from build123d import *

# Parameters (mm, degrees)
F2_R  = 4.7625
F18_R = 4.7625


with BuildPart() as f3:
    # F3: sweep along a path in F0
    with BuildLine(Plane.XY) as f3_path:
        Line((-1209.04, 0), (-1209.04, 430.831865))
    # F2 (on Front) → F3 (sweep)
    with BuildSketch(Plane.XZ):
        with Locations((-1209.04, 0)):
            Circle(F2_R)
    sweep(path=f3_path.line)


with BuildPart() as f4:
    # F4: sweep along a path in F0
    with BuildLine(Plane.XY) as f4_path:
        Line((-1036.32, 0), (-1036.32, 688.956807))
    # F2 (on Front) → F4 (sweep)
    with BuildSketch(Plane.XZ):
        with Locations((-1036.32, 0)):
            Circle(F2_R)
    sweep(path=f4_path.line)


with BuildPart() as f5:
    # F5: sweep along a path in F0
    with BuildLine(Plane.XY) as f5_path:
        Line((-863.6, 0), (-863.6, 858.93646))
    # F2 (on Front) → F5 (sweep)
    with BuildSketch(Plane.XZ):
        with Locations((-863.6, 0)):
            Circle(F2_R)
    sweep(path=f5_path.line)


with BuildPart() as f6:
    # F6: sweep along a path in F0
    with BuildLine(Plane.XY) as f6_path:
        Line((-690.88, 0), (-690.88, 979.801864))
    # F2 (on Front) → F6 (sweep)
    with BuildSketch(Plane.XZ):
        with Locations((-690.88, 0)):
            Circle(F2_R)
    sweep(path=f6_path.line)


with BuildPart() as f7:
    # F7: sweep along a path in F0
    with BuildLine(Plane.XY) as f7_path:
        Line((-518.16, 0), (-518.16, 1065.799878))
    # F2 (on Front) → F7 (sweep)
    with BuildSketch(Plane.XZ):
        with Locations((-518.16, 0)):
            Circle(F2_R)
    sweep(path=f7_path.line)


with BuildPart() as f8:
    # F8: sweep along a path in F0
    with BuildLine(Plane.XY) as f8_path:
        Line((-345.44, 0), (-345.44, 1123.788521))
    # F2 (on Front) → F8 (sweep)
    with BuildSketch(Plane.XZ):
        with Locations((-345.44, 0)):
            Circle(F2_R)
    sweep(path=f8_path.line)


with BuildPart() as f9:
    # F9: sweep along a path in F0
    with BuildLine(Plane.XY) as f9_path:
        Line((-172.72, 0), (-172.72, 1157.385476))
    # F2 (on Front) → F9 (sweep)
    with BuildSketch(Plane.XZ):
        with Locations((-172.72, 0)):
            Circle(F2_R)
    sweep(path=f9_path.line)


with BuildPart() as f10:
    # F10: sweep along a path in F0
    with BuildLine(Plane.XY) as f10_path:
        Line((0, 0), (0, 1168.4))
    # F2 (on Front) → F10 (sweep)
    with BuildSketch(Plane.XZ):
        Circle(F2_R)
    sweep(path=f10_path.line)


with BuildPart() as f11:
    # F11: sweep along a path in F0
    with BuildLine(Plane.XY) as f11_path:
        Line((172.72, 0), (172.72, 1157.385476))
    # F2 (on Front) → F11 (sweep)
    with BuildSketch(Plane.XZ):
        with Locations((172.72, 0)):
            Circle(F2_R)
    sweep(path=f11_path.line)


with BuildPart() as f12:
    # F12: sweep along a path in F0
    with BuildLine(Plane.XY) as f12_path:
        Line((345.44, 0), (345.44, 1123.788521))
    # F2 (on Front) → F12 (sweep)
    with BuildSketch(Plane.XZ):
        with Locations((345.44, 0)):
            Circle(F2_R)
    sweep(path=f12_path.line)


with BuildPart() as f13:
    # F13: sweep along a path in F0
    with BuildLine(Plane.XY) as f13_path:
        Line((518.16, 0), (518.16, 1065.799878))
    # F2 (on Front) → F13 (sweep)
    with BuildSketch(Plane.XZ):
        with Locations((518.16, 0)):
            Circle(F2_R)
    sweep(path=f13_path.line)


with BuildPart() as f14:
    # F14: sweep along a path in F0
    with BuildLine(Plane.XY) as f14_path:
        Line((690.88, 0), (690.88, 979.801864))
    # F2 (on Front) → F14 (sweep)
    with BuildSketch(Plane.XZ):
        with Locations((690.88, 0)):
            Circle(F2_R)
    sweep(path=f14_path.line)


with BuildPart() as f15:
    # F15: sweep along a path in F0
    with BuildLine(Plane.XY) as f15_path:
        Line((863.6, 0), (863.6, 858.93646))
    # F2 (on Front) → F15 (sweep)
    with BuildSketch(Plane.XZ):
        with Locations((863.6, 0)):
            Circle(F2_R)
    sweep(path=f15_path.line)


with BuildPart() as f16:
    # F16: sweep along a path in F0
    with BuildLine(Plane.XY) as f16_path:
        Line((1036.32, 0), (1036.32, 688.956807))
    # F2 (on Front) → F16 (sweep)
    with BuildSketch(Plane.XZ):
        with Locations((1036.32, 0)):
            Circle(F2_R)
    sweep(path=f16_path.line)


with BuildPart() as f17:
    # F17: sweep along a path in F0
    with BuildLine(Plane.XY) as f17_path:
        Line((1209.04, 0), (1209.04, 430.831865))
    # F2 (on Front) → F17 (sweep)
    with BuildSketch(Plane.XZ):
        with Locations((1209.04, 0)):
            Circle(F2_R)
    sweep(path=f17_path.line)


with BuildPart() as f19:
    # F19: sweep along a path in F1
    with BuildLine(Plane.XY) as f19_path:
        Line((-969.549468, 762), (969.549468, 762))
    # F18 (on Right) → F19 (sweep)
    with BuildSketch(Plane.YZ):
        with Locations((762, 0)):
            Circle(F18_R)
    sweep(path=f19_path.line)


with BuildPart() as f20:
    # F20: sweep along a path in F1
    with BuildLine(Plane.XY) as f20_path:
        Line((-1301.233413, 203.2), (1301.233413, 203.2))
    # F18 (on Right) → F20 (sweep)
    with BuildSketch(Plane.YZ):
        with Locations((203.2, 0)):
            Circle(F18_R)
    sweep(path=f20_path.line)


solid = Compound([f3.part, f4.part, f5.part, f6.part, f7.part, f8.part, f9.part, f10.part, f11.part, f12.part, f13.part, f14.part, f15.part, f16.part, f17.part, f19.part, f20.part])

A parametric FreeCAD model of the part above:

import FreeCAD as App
import Part
import Sketcher

V = App.Vector
Q = App.Units.Quantity

doc = App.newDocument("Part")
body = doc.addObject("PartDesign::Body", "Body")

sketch1 = doc.addObject("Sketcher::SketchObject", "Sketch")
body.addObject(sketch1)
sketch1.AttachmentSupport = (doc.XZ_Plane, [""])
sketch1.MapMode = "FlatFace"
sketch1.addGeometry(Part.Circle(V(-1209, 0, 0), V(0, 0, 1), 4.8), False)
sketch1.addConstraint(Sketcher.Constraint("PointOnObject", 0, 3, -1))
sketch1.addConstraint(Sketcher.Constraint("Diameter", 0, Q("0.375 in")))
sketch1.addConstraint(Sketcher.Constraint("DistanceX", 0, 3, -1, 1, Q("47.6 in")))

sketch2 = doc.addObject("Sketcher::SketchObject", "Sketch001")
body.addObject(sketch2)
sketch2.AttachmentSupport = (doc.XY_Plane, [""])
sketch2.MapMode = "FlatFace"
sketch2.addGeometry(Part.LineSegment(V(-1209, 0, 0), V(-1209, 431, 0)), False)
sketch2.addConstraint(Sketcher.Constraint("Vertical", 0))
sketch2.addConstraint(Sketcher.Constraint("PointOnObject", 0, 1, -1))
sketch2.addConstraint(Sketcher.Constraint("DistanceX", 0, 1, -1, 1, Q("47.6 in")))
sketch2.addConstraint(Sketcher.Constraint("DistanceY", 0, 1, 0, 2, 430.831865))
doc.recompute()

additivepipe = doc.addObject("PartDesign::AdditivePipe", "AdditivePipe")
body.addObject(additivepipe)
additivepipe.Profile = sketch1
additivepipe.Spine = (sketch2, ["Edge1"])
body2 = doc.addObject("PartDesign::Body", "Body001")

sketch3 = doc.addObject("Sketcher::SketchObject", "Sketch002")
body2.addObject(sketch3)
sketch3.AttachmentSupport = (doc.getObject("XZ_Plane001"), [""])
sketch3.MapMode = "FlatFace"
sketch3.addGeometry(Part.Circle(V(-1036.3, 0, 0), V(0, 0, 1), 4.8), False)
sketch3.addConstraint(Sketcher.Constraint("PointOnObject", 0, 3, -1))
sketch3.addConstraint(Sketcher.Constraint("Diameter", 0, Q("0.375 in")))
sketch3.addConstraint(Sketcher.Constraint("DistanceX", 0, 3, -1, 1, Q("40.8 in")))

sketch4 = doc.addObject("Sketcher::SketchObject", "Sketch003")
body2.addObject(sketch4)
sketch4.AttachmentSupport = (doc.getObject("XY_Plane001"), [""])
sketch4.MapMode = "FlatFace"
sketch4.addGeometry(Part.LineSegment(V(-1036, 0, 0), V(-1036, 689, 0)), False)
sketch4.addConstraint(Sketcher.Constraint("Vertical", 0))
sketch4.addConstraint(Sketcher.Constraint("PointOnObject", 0, 1, -1))
sketch4.addConstraint(Sketcher.Constraint("DistanceX", 0, 1, -1, 1, Q("40.8 in")))
sketch4.addConstraint(Sketcher.Constraint("DistanceY", 0, 1, 0, 2, 688.956807))
doc.recompute()

additivepipe2 = doc.addObject("PartDesign::AdditivePipe", "AdditivePipe001")
body2.addObject(additivepipe2)
additivepipe2.Profile = sketch3
additivepipe2.Spine = (sketch4, ["Edge1"])
body3 = doc.addObject("PartDesign::Body", "Body002")

sketch5 = doc.addObject("Sketcher::SketchObject", "Sketch004")
body3.addObject(sketch5)
sketch5.AttachmentSupport = (doc.getObject("XZ_Plane002"), [""])
sketch5.MapMode = "FlatFace"
sketch5.addGeometry(Part.Circle(V(-863.6, 0, 0), V(0, 0, 1), 4.8), False)
sketch5.addConstraint(Sketcher.Constraint("PointOnObject", 0, 3, -1))
sketch5.addConstraint(Sketcher.Constraint("Diameter", 0, Q("0.375 in")))
sketch5.addConstraint(Sketcher.Constraint("DistanceX", 0, 3, -1, 1, Q("34 in")))

sketch6 = doc.addObject("Sketcher::SketchObject", "Sketch005")
body3.addObject(sketch6)
sketch6.AttachmentSupport = (doc.getObject("XY_Plane002"), [""])
sketch6.MapMode = "FlatFace"
sketch6.addGeometry(Part.LineSegment(V(-864, 0, 0), V(-864, 859, 0)), False)
sketch6.addConstraint(Sketcher.Constraint("Vertical", 0))
sketch6.addConstraint(Sketcher.Constraint("PointOnObject", 0, 1, -1))
sketch6.addConstraint(Sketcher.Constraint("DistanceX", 0, 1, -1, 1, Q("34 in")))
sketch6.addConstraint(Sketcher.Constraint("DistanceY", 0, 1, 0, 2, 858.93646))
doc.recompute()

additivepipe3 = doc.addObject("PartDesign::AdditivePipe", "AdditivePipe002")
body3.addObject(additivepipe3)
additivepipe3.Profile = sketch5
additivepipe3.Spine = (sketch6, ["Edge1"])
body4 = doc.addObject("PartDesign::Body", "Body003")

sketch7 = doc.addObject("Sketcher::SketchObject", "Sketch006")
body4.addObject(sketch7)
sketch7.AttachmentSupport = (doc.getObject("XZ_Plane003"), [""])
sketch7.MapMode = "FlatFace"
sketch7.addGeometry(Part.Circle(V(-690.9, 0, 0), V(0, 0, 1), 4.8), False)
sketch7.addConstraint(Sketcher.Constraint("PointOnObject", 0, 3, -1))
sketch7.addConstraint(Sketcher.Constraint("Diameter", 0, Q("0.375 in")))
sketch7.addConstraint(Sketcher.Constraint("DistanceX", 0, 3, -1, 1, Q("27.2 in")))

sketch8 = doc.addObject("Sketcher::SketchObject", "Sketch007")
body4.addObject(sketch8)
sketch8.AttachmentSupport = (doc.getObject("XY_Plane003"), [""])
sketch8.MapMode = "FlatFace"
sketch8.addGeometry(Part.LineSegment(V(-691, 0, 0), V(-691, 980, 0)), False)
sketch8.addConstraint(Sketcher.Constraint("Vertical", 0))
sketch8.addConstraint(Sketcher.Constraint("PointOnObject", 0, 1, -1))
sketch8.addConstraint(Sketcher.Constraint("DistanceX", 0, 1, -1, 1, Q("27.2 in")))
sketch8.addConstraint(Sketcher.Constraint("DistanceY", 0, 1, 0, 2, 979.801864))
doc.recompute()

additivepipe4 = doc.addObject("PartDesign::AdditivePipe", "AdditivePipe003")
body4.addObject(additivepipe4)
additivepipe4.Profile = sketch7
additivepipe4.Spine = (sketch8, ["Edge1"])
body5 = doc.addObject("PartDesign::Body", "Body004")

sketch9 = doc.addObject("Sketcher::SketchObject", "Sketch008")
body5.addObject(sketch9)
sketch9.AttachmentSupport = (doc.getObject("XZ_Plane004"), [""])
sketch9.MapMode = "FlatFace"
sketch9.addGeometry(Part.Circle(V(-518.2, 0, 0), V(0, 0, 1), 4.8), False)
sketch9.addConstraint(Sketcher.Constraint("PointOnObject", 0, 3, -1))
sketch9.addConstraint(Sketcher.Constraint("Diameter", 0, Q("0.375 in")))
sketch9.addConstraint(Sketcher.Constraint("DistanceX", 0, 3, -1, 1, Q("20.4 in")))

sketch10 = doc.addObject("Sketcher::SketchObject", "Sketch009")
body5.addObject(sketch10)
sketch10.AttachmentSupport = (doc.getObject("XY_Plane004"), [""])
sketch10.MapMode = "FlatFace"
sketch10.addGeometry(Part.LineSegment(V(-518, 0, 0), V(-518, 1066, 0)), False)
sketch10.addConstraint(Sketcher.Constraint("Vertical", 0))
sketch10.addConstraint(Sketcher.Constraint("PointOnObject", 0, 1, -1))
sketch10.addConstraint(Sketcher.Constraint("DistanceX", 0, 1, -1, 1, Q("20.4 in")))
sketch10.addConstraint(Sketcher.Constraint("DistanceY", 0, 1, 0, 2, 1065.799878))
doc.recompute()

additivepipe5 = doc.addObject("PartDesign::AdditivePipe", "AdditivePipe004")
body5.addObject(additivepipe5)
additivepipe5.Profile = sketch9
additivepipe5.Spine = (sketch10, ["Edge1"])
body6 = doc.addObject("PartDesign::Body", "Body005")

sketch11 = doc.addObject("Sketcher::SketchObject", "Sketch010")
body6.addObject(sketch11)
sketch11.AttachmentSupport = (doc.getObject("XZ_Plane005"), [""])
sketch11.MapMode = "FlatFace"
sketch11.addGeometry(Part.Circle(V(-345.4, 0, 0), V(0, 0, 1), 4.8), False)
sketch11.addConstraint(Sketcher.Constraint("PointOnObject", 0, 3, -1))
sketch11.addConstraint(Sketcher.Constraint("Diameter", 0, Q("0.375 in")))
sketch11.addConstraint(Sketcher.Constraint("DistanceX", 0, 3, -1, 1, Q("13.6 in")))

sketch12 = doc.addObject("Sketcher::SketchObject", "Sketch011")
body6.addObject(sketch12)
sketch12.AttachmentSupport = (doc.getObject("XY_Plane005"), [""])
sketch12.MapMode = "FlatFace"
sketch12.addGeometry(Part.LineSegment(V(-345, 0, 0), V(-345, 1124, 0)), False)
sketch12.addConstraint(Sketcher.Constraint("Vertical", 0))
sketch12.addConstraint(Sketcher.Constraint("PointOnObject", 0, 1, -1))
sketch12.addConstraint(Sketcher.Constraint("DistanceX", 0, 1, -1, 1, Q("13.6 in")))
sketch12.addConstraint(Sketcher.Constraint("DistanceY", 0, 1, 0, 2, 1123.788521))
doc.recompute()

additivepipe6 = doc.addObject("PartDesign::AdditivePipe", "AdditivePipe005")
body6.addObject(additivepipe6)
additivepipe6.Profile = sketch11
additivepipe6.Spine = (sketch12, ["Edge1"])
body7 = doc.addObject("PartDesign::Body", "Body006")

sketch13 = doc.addObject("Sketcher::SketchObject", "Sketch012")
body7.addObject(sketch13)
sketch13.AttachmentSupport = (doc.getObject("XZ_Plane006"), [""])
sketch13.MapMode = "FlatFace"
sketch13.addGeometry(Part.Circle(V(-172.7, 0, 0), V(0, 0, 1), 4.8), False)
sketch13.addConstraint(Sketcher.Constraint("PointOnObject", 0, 3, -1))
sketch13.addConstraint(Sketcher.Constraint("Diameter", 0, Q("0.375 in")))
sketch13.addConstraint(Sketcher.Constraint("DistanceX", 0, 3, -1, 1, Q("6.8 in")))

sketch14 = doc.addObject("Sketcher::SketchObject", "Sketch013")
body7.addObject(sketch14)
sketch14.AttachmentSupport = (doc.getObject("XY_Plane006"), [""])
sketch14.MapMode = "FlatFace"
sketch14.addGeometry(Part.LineSegment(V(-173, 0, 0), V(-173, 1157, 0)), False)
sketch14.addConstraint(Sketcher.Constraint("Vertical", 0))
sketch14.addConstraint(Sketcher.Constraint("PointOnObject", 0, 1, -1))
sketch14.addConstraint(Sketcher.Constraint("DistanceX", 0, 1, -1, 1, Q("6.8 in")))
sketch14.addConstraint(Sketcher.Constraint("DistanceY", 0, 1, 0, 2, 1157.385476))
doc.recompute()

additivepipe7 = doc.addObject("PartDesign::AdditivePipe", "AdditivePipe006")
body7.addObject(additivepipe7)
additivepipe7.Profile = sketch13
additivepipe7.Spine = (sketch14, ["Edge1"])
body8 = doc.addObject("PartDesign::Body", "Body007")

sketch15 = doc.addObject("Sketcher::SketchObject", "Sketch014")
body8.addObject(sketch15)
sketch15.AttachmentSupport = (doc.getObject("XZ_Plane007"), [""])
sketch15.MapMode = "FlatFace"
sketch15.addGeometry(Part.Circle(V(0, 0, 0), V(0, 0, 1), 4.8), False)
sketch15.addConstraint(Sketcher.Constraint("Coincident", 0, 3, -1, 1))
sketch15.addConstraint(Sketcher.Constraint("Diameter", 0, Q("0.375 in")))

sketch16 = doc.addObject("Sketcher::SketchObject", "Sketch015")
body8.addObject(sketch16)
sketch16.AttachmentSupport = (doc.getObject("XY_Plane007"), [""])
sketch16.MapMode = "FlatFace"
sketch16.addGeometry(Part.LineSegment(V(0, 0, 0), V(0, 1168, 0)), False)
sketch16.addConstraint(Sketcher.Constraint("Vertical", 0))
sketch16.addConstraint(Sketcher.Constraint("Coincident", 0, 1, -1, 1))
sketch16.addConstraint(Sketcher.Constraint("DistanceY", 0, 1, 0, 2, Q("46 in")))
doc.recompute()

additivepipe8 = doc.addObject("PartDesign::AdditivePipe", "AdditivePipe007")
body8.addObject(additivepipe8)
additivepipe8.Profile = sketch15
additivepipe8.Spine = (sketch16, ["Edge1"])
body9 = doc.addObject("PartDesign::Body", "Body008")

sketch17 = doc.addObject("Sketcher::SketchObject", "Sketch016")
body9.addObject(sketch17)
sketch17.AttachmentSupport = (doc.getObject("XZ_Plane008"), [""])
sketch17.MapMode = "FlatFace"
sketch17.addGeometry(Part.Circle(V(172.7, 0, 0), V(0, 0, 1), 4.8), False)
sketch17.addConstraint(Sketcher.Constraint("PointOnObject", 0, 3, -1))
sketch17.addConstraint(Sketcher.Constraint("Diameter", 0, Q("0.375 in")))
sketch17.addConstraint(Sketcher.Constraint("DistanceX", -1, 1, 0, 3, Q("6.8 in")))

sketch18 = doc.addObject("Sketcher::SketchObject", "Sketch017")
body9.addObject(sketch18)
sketch18.AttachmentSupport = (doc.getObject("XY_Plane008"), [""])
sketch18.MapMode = "FlatFace"
sketch18.addGeometry(Part.LineSegment(V(173, 0, 0), V(173, 1157, 0)), False)
sketch18.addConstraint(Sketcher.Constraint("Vertical", 0))
sketch18.addConstraint(Sketcher.Constraint("PointOnObject", 0, 1, -1))
sketch18.addConstraint(Sketcher.Constraint("DistanceX", -1, 1, 0, 1, Q("6.8 in")))
sketch18.addConstraint(Sketcher.Constraint("DistanceY", 0, 1, 0, 2, 1157.385476))
doc.recompute()

additivepipe9 = doc.addObject("PartDesign::AdditivePipe", "AdditivePipe008")
body9.addObject(additivepipe9)
additivepipe9.Profile = sketch17
additivepipe9.Spine = (sketch18, ["Edge1"])
body10 = doc.addObject("PartDesign::Body", "Body009")

sketch19 = doc.addObject("Sketcher::SketchObject", "Sketch018")
body10.addObject(sketch19)
sketch19.AttachmentSupport = (doc.getObject("XZ_Plane009"), [""])
sketch19.MapMode = "FlatFace"
sketch19.addGeometry(Part.Circle(V(345.4, 0, 0), V(0, 0, 1), 4.8), False)
sketch19.addConstraint(Sketcher.Constraint("PointOnObject", 0, 3, -1))
sketch19.addConstraint(Sketcher.Constraint("Diameter", 0, Q("0.375 in")))
sketch19.addConstraint(Sketcher.Constraint("DistanceX", -1, 1, 0, 3, Q("13.6 in")))

sketch20 = doc.addObject("Sketcher::SketchObject", "Sketch019")
body10.addObject(sketch20)
sketch20.AttachmentSupport = (doc.getObject("XY_Plane009"), [""])
sketch20.MapMode = "FlatFace"
sketch20.addGeometry(Part.LineSegment(V(345, 0, 0), V(345, 1124, 0)), False)
sketch20.addConstraint(Sketcher.Constraint("Vertical", 0))
sketch20.addConstraint(Sketcher.Constraint("PointOnObject", 0, 1, -1))
sketch20.addConstraint(Sketcher.Constraint("DistanceX", -1, 1, 0, 1, Q("13.6 in")))
sketch20.addConstraint(Sketcher.Constraint("DistanceY", 0, 1, 0, 2, 1123.788521))
doc.recompute()

additivepipe10 = doc.addObject("PartDesign::AdditivePipe", "AdditivePipe009")
body10.addObject(additivepipe10)
additivepipe10.Profile = sketch19
additivepipe10.Spine = (sketch20, ["Edge1"])
body11 = doc.addObject("PartDesign::Body", "Body010")

sketch21 = doc.addObject("Sketcher::SketchObject", "Sketch020")
body11.addObject(sketch21)
sketch21.AttachmentSupport = (doc.getObject("XZ_Plane010"), [""])
sketch21.MapMode = "FlatFace"
sketch21.addGeometry(Part.Circle(V(518.2, 0, 0), V(0, 0, 1), 4.8), False)
sketch21.addConstraint(Sketcher.Constraint("PointOnObject", 0, 3, -1))
sketch21.addConstraint(Sketcher.Constraint("Diameter", 0, Q("0.375 in")))
sketch21.addConstraint(Sketcher.Constraint("DistanceX", -1, 1, 0, 3, Q("20.4 in")))

sketch22 = doc.addObject("Sketcher::SketchObject", "Sketch021")
body11.addObject(sketch22)
sketch22.AttachmentSupport = (doc.getObject("XY_Plane010"), [""])
sketch22.MapMode = "FlatFace"
sketch22.addGeometry(Part.LineSegment(V(518, 0, 0), V(518, 1066, 0)), False)
sketch22.addConstraint(Sketcher.Constraint("Vertical", 0))
sketch22.addConstraint(Sketcher.Constraint("PointOnObject", 0, 1, -1))
sketch22.addConstraint(Sketcher.Constraint("DistanceX", -1, 1, 0, 1, Q("20.4 in")))
sketch22.addConstraint(Sketcher.Constraint("DistanceY", 0, 1, 0, 2, 1065.799878))
doc.recompute()

additivepipe11 = doc.addObject("PartDesign::AdditivePipe", "AdditivePipe010")
body11.addObject(additivepipe11)
additivepipe11.Profile = sketch21
additivepipe11.Spine = (sketch22, ["Edge1"])
body12 = doc.addObject("PartDesign::Body", "Body011")

sketch23 = doc.addObject("Sketcher::SketchObject", "Sketch022")
body12.addObject(sketch23)
sketch23.AttachmentSupport = (doc.getObject("XZ_Plane011"), [""])
sketch23.MapMode = "FlatFace"
sketch23.addGeometry(Part.Circle(V(690.9, 0, 0), V(0, 0, 1), 4.8), False)
sketch23.addConstraint(Sketcher.Constraint("PointOnObject", 0, 3, -1))
sketch23.addConstraint(Sketcher.Constraint("Diameter", 0, Q("0.375 in")))
sketch23.addConstraint(Sketcher.Constraint("DistanceX", -1, 1, 0, 3, Q("27.2 in")))

sketch24 = doc.addObject("Sketcher::SketchObject", "Sketch023")
body12.addObject(sketch24)
sketch24.AttachmentSupport = (doc.getObject("XY_Plane011"), [""])
sketch24.MapMode = "FlatFace"
sketch24.addGeometry(Part.LineSegment(V(691, 0, 0), V(691, 980, 0)), False)
sketch24.addConstraint(Sketcher.Constraint("Vertical", 0))
sketch24.addConstraint(Sketcher.Constraint("PointOnObject", 0, 1, -1))
sketch24.addConstraint(Sketcher.Constraint("DistanceX", -1, 1, 0, 1, Q("27.2 in")))
sketch24.addConstraint(Sketcher.Constraint("DistanceY", 0, 1, 0, 2, 979.801864))
doc.recompute()

additivepipe12 = doc.addObject("PartDesign::AdditivePipe", "AdditivePipe011")
body12.addObject(additivepipe12)
additivepipe12.Profile = sketch23
additivepipe12.Spine = (sketch24, ["Edge1"])
body13 = doc.addObject("PartDesign::Body", "Body012")

sketch25 = doc.addObject("Sketcher::SketchObject", "Sketch024")
body13.addObject(sketch25)
sketch25.AttachmentSupport = (doc.getObject("XZ_Plane012"), [""])
sketch25.MapMode = "FlatFace"
sketch25.addGeometry(Part.Circle(V(863.6, 0, 0), V(0, 0, 1), 4.8), False)
sketch25.addConstraint(Sketcher.Constraint("PointOnObject", 0, 3, -1))
sketch25.addConstraint(Sketcher.Constraint("Diameter", 0, Q("0.375 in")))
sketch25.addConstraint(Sketcher.Constraint("DistanceX", -1, 1, 0, 3, Q("34 in")))

sketch26 = doc.addObject("Sketcher::SketchObject", "Sketch025")
body13.addObject(sketch26)
sketch26.AttachmentSupport = (doc.getObject("XY_Plane012"), [""])
sketch26.MapMode = "FlatFace"
sketch26.addGeometry(Part.LineSegment(V(864, 0, 0), V(864, 859, 0)), False)
sketch26.addConstraint(Sketcher.Constraint("Vertical", 0))
sketch26.addConstraint(Sketcher.Constraint("PointOnObject", 0, 1, -1))
sketch26.addConstraint(Sketcher.Constraint("DistanceX", -1, 1, 0, 1, Q("34 in")))
sketch26.addConstraint(Sketcher.Constraint("DistanceY", 0, 1, 0, 2, 858.93646))
doc.recompute()

additivepipe13 = doc.addObject("PartDesign::AdditivePipe", "AdditivePipe012")
body13.addObject(additivepipe13)
additivepipe13.Profile = sketch25
additivepipe13.Spine = (sketch26, ["Edge1"])
body14 = doc.addObject("PartDesign::Body", "Body013")

sketch27 = doc.addObject("Sketcher::SketchObject", "Sketch026")
body14.addObject(sketch27)
sketch27.AttachmentSupport = (doc.getObject("XZ_Plane013"), [""])
sketch27.MapMode = "FlatFace"
sketch27.addGeometry(Part.Circle(V(1036.3, 0, 0), V(0, 0, 1), 4.8), False)
sketch27.addConstraint(Sketcher.Constraint("PointOnObject", 0, 3, -1))
sketch27.addConstraint(Sketcher.Constraint("Diameter", 0, Q("0.375 in")))
sketch27.addConstraint(Sketcher.Constraint("DistanceX", -1, 1, 0, 3, Q("40.8 in")))

sketch28 = doc.addObject("Sketcher::SketchObject", "Sketch027")
body14.addObject(sketch28)
sketch28.AttachmentSupport = (doc.getObject("XY_Plane013"), [""])
sketch28.MapMode = "FlatFace"
sketch28.addGeometry(Part.LineSegment(V(1036, 0, 0), V(1036, 689, 0)), False)
sketch28.addConstraint(Sketcher.Constraint("Vertical", 0))
sketch28.addConstraint(Sketcher.Constraint("PointOnObject", 0, 1, -1))
sketch28.addConstraint(Sketcher.Constraint("DistanceX", -1, 1, 0, 1, Q("40.8 in")))
sketch28.addConstraint(Sketcher.Constraint("DistanceY", 0, 1, 0, 2, 688.956807))
doc.recompute()

additivepipe14 = doc.addObject("PartDesign::AdditivePipe", "AdditivePipe013")
body14.addObject(additivepipe14)
additivepipe14.Profile = sketch27
additivepipe14.Spine = (sketch28, ["Edge1"])
body15 = doc.addObject("PartDesign::Body", "Body014")

sketch29 = doc.addObject("Sketcher::SketchObject", "Sketch028")
body15.addObject(sketch29)
sketch29.AttachmentSupport = (doc.getObject("XZ_Plane014"), [""])
sketch29.MapMode = "FlatFace"
sketch29.addGeometry(Part.Circle(V(1209, 0, 0), V(0, 0, 1), 4.8), False)
sketch29.addConstraint(Sketcher.Constraint("PointOnObject", 0, 3, -1))
sketch29.addConstraint(Sketcher.Constraint("Diameter", 0, Q("0.375 in")))
sketch29.addConstraint(Sketcher.Constraint("DistanceX", -1, 1, 0, 3, Q("47.6 in")))

sketch30 = doc.addObject("Sketcher::SketchObject", "Sketch029")
body15.addObject(sketch30)
sketch30.AttachmentSupport = (doc.getObject("XY_Plane014"), [""])
sketch30.MapMode = "FlatFace"
sketch30.addGeometry(Part.LineSegment(V(1209, 0, 0), V(1209, 431, 0)), False)
sketch30.addConstraint(Sketcher.Constraint("Vertical", 0))
sketch30.addConstraint(Sketcher.Constraint("PointOnObject", 0, 1, -1))
sketch30.addConstraint(Sketcher.Constraint("DistanceX", -1, 1, 0, 1, Q("47.6 in")))
sketch30.addConstraint(Sketcher.Constraint("DistanceY", 0, 1, 0, 2, 430.831865))
doc.recompute()

additivepipe15 = doc.addObject("PartDesign::AdditivePipe", "AdditivePipe014")
body15.addObject(additivepipe15)
additivepipe15.Profile = sketch29
additivepipe15.Spine = (sketch30, ["Edge1"])
body16 = doc.addObject("PartDesign::Body", "Body015")

sketch31 = doc.addObject("Sketcher::SketchObject", "Sketch030")
body16.addObject(sketch31)
sketch31.AttachmentSupport = (doc.getObject("YZ_Plane015"), [""])
sketch31.MapMode = "FlatFace"
sketch31.addGeometry(Part.Circle(V(762, 0, 0), V(0, 0, 1), 4.8), False)
sketch31.addConstraint(Sketcher.Constraint("PointOnObject", 0, 3, -1))
sketch31.addConstraint(Sketcher.Constraint("Diameter", 0, Q("0.375 in")))
sketch31.addConstraint(Sketcher.Constraint("DistanceX", -1, 1, 0, 3, Q("30 in")))

sketch32 = doc.addObject("Sketcher::SketchObject", "Sketch031")
body16.addObject(sketch32)
sketch32.AttachmentSupport = (doc.getObject("XY_Plane015"), [""])
sketch32.MapMode = "FlatFace"
sketch32.addGeometry(Part.LineSegment(V(-970, 762, 0), V(970, 762, 0)), False)
sketch32.addConstraint(Sketcher.Constraint("Horizontal", 0))
sketch32.addConstraint(Sketcher.Constraint("DistanceY", -1, 1, 0, 1, Q("30 in")))
sketch32.addConstraint(Sketcher.Constraint("DistanceX", 0, 1, 0, 2, 1939.098936))
sketch32.addConstraint(Sketcher.Constraint("DistanceX", 0, 1, -1, 1, 969.549468))
doc.recompute()

additivepipe16 = doc.addObject("PartDesign::AdditivePipe", "AdditivePipe015")
body16.addObject(additivepipe16)
additivepipe16.Profile = sketch31
additivepipe16.Spine = (sketch32, ["Edge1"])
body17 = doc.addObject("PartDesign::Body", "Body016")

sketch33 = doc.addObject("Sketcher::SketchObject", "Sketch032")
body17.addObject(sketch33)
sketch33.AttachmentSupport = (doc.getObject("YZ_Plane016"), [""])
sketch33.MapMode = "FlatFace"
sketch33.addGeometry(Part.Circle(V(203.2, 0, 0), V(0, 0, 1), 4.8), False)
sketch33.addConstraint(Sketcher.Constraint("PointOnObject", 0, 3, -1))
sketch33.addConstraint(Sketcher.Constraint("Diameter", 0, Q("0.375 in")))
sketch33.addConstraint(Sketcher.Constraint("DistanceX", -1, 1, 0, 3, Q("8 in")))

sketch34 = doc.addObject("Sketcher::SketchObject", "Sketch033")
body17.addObject(sketch34)
sketch34.AttachmentSupport = (doc.getObject("XY_Plane016"), [""])
sketch34.MapMode = "FlatFace"
sketch34.addGeometry(Part.LineSegment(V(-1301, 203, 0), V(1301, 203, 0)), False)
sketch34.addConstraint(Sketcher.Constraint("Horizontal", 0))
sketch34.addConstraint(Sketcher.Constraint("DistanceY", -1, 1, 0, 1, Q("8 in")))
sketch34.addConstraint(Sketcher.Constraint("DistanceX", 0, 1, 0, 2, 2602.466826))
sketch34.addConstraint(Sketcher.Constraint("DistanceX", 0, 1, -1, 1, 1301.233413))
doc.recompute()

additivepipe17 = doc.addObject("PartDesign::AdditivePipe", "AdditivePipe016")
body17.addObject(additivepipe17)
additivepipe17.Profile = sketch33
additivepipe17.Spine = (sketch34, ["Edge1"])

doc.recompute()
